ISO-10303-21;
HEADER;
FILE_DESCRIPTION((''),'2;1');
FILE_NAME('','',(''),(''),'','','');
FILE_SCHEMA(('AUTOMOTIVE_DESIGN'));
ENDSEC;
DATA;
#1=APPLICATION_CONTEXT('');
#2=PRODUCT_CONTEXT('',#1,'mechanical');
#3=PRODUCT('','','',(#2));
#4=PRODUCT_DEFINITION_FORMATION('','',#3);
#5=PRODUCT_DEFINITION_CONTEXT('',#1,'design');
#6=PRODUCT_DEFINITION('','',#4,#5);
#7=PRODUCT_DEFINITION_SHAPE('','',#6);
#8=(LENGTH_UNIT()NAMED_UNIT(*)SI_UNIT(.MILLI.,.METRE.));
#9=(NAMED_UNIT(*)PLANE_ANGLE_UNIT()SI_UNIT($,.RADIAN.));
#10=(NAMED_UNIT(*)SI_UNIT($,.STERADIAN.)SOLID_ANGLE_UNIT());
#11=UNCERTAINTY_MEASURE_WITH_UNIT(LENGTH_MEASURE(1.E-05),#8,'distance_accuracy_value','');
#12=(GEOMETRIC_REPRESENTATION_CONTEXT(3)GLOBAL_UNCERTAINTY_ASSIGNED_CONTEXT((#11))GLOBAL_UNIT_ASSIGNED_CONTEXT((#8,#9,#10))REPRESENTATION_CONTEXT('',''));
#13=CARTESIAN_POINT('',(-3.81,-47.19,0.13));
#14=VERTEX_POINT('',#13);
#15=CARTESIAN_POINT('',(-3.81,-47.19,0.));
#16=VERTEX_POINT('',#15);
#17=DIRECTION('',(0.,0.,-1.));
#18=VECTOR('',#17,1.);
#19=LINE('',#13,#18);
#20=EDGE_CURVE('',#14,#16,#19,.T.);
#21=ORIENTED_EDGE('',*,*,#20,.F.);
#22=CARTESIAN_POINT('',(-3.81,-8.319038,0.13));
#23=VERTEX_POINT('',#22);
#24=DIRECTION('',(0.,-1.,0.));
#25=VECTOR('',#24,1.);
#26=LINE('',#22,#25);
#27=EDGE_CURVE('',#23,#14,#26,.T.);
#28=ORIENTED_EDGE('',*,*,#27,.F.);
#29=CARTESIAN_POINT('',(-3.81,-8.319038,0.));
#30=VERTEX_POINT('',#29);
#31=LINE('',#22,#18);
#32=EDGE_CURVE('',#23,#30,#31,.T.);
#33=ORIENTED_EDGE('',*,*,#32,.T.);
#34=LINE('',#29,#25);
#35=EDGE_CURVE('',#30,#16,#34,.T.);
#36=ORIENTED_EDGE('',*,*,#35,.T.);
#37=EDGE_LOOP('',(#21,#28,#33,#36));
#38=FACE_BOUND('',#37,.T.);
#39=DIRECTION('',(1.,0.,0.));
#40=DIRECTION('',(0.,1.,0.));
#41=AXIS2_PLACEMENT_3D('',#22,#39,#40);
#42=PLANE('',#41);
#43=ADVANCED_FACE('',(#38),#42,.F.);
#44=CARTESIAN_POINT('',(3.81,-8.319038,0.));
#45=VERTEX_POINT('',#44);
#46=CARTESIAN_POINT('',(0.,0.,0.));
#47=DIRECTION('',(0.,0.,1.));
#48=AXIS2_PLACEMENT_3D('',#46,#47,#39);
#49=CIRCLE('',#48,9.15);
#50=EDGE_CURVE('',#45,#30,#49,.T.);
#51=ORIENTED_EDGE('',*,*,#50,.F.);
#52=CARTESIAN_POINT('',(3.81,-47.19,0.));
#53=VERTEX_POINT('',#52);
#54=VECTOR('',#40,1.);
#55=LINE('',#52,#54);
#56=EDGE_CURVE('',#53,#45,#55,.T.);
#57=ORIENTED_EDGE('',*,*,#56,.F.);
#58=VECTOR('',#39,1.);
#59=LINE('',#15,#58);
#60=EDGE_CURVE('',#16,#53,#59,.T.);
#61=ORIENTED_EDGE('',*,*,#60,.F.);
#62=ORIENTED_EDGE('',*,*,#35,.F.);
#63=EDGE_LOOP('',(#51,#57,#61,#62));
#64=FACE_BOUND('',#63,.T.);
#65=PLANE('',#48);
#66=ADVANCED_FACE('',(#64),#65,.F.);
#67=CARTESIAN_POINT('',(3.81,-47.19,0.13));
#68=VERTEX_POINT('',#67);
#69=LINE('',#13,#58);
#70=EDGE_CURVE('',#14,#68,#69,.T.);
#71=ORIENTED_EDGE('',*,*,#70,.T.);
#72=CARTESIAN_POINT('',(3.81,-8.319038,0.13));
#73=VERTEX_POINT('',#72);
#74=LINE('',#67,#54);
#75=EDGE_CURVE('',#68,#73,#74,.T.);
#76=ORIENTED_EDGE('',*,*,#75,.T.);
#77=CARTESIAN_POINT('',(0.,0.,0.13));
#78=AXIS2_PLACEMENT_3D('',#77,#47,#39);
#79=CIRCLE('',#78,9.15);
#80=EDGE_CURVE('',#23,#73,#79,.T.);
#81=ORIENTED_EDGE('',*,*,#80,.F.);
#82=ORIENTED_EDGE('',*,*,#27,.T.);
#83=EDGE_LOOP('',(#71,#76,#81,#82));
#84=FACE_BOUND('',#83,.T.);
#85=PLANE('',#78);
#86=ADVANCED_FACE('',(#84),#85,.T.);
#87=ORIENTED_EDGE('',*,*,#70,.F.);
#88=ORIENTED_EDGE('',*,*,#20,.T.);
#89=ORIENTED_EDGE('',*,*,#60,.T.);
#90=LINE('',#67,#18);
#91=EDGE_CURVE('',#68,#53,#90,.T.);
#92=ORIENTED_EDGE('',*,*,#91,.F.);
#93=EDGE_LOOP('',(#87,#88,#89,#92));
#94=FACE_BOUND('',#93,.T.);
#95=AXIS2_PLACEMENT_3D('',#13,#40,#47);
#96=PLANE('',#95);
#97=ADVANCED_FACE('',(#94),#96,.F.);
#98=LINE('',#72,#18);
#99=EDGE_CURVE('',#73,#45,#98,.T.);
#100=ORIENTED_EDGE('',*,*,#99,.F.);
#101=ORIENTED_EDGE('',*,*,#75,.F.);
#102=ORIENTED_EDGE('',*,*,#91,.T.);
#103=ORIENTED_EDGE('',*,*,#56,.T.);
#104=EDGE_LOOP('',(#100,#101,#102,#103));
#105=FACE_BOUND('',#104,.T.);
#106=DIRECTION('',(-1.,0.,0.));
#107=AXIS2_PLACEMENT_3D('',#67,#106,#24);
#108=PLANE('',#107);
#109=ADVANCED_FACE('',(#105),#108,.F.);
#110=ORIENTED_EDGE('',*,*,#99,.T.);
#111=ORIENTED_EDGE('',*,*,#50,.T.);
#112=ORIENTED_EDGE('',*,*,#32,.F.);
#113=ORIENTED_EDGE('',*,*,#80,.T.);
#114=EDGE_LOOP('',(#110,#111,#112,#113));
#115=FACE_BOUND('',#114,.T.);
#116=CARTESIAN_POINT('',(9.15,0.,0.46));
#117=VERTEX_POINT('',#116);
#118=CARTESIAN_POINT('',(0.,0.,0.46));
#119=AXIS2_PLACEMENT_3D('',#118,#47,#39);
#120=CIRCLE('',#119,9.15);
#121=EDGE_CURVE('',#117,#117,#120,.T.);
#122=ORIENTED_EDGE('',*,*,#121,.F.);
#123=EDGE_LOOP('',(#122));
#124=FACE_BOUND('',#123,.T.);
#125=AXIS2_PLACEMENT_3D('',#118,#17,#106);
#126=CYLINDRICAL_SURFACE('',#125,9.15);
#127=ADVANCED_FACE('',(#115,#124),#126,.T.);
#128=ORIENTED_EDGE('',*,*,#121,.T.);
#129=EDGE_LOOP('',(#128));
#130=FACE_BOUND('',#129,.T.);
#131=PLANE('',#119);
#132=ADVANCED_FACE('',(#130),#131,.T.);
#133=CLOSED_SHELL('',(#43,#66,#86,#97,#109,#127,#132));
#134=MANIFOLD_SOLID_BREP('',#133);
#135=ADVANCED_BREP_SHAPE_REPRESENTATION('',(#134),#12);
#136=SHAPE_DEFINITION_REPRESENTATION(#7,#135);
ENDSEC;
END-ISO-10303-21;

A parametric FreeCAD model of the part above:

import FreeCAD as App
import Part
import Sketcher

V = App.Vector


def add_polygon(sketch, points):
    """Adds a closed chain of lines whose ends are joined by coincident constraints."""
    first, n = sketch.GeometryCount, len(points)
    for a, b in zip(points, points[1:] + points[:1]):
        sketch.addGeometry(Part.LineSegment(App.Vector(*a, 0), App.Vector(*b, 0)), False)
    for i in range(n):
        sketch.addConstraint(Sketcher.Constraint("Coincident", first + i, 2, first + (i + 1) % n, 1))

doc = App.newDocument("Part")
body = doc.addObject("PartDesign::Body", "Body")

sketch1 = body.newObject("Sketcher::SketchObject", "Sketch")
sketch1.AttachmentSupport = (doc.getObject("XY_Plane"), [""])
sketch1.MapMode = "FlatFace"
sketch1.addGeometry(Part.Circle(V(0, 0, 0), V(0, 0, 1), 9.15), False)
sketch1.addConstraint([
    Sketcher.Constraint("Coincident", 0, 3, -1, 1),
    Sketcher.Constraint("Diameter", 0, 18.3),
])
pad1 = body.newObject("PartDesign::Pad", "Pad")
pad1.Profile = sketch1
pad1.Length = 0.46

sketch2 = body.newObject("Sketcher::SketchObject", "Sketch001")
sketch2.AttachmentSupport = (doc.getObject("XY_Plane"), [""])
sketch2.MapMode = "FlatFace"
add_polygon(sketch2, [(-3.81, -8.319038), (-3.81, -47.19), (3.81, -47.19), (3.81, -8.319038)])
sketch2.addConstraint([
    Sketcher.Constraint("Vertical", 0),
    Sketcher.Constraint("Horizontal", 1),
    Sketcher.Constraint("Vertical", 2),
    Sketcher.Constraint("Horizontal", 3),
    Sketcher.Constraint("DistanceX", 1, 1, 1, 2, 7.62),
    Sketcher.Constraint("DistanceX", 0, 2, -1, 1, 3.81),
    Sketcher.Constraint("DistanceY", 0, 2, -1, 1, 47.19),
    Sketcher.Constraint("DistanceY", 0, 2, 0, 1, 38.870962),
])
pad2 = body.newObject("PartDesign::Pad", "Pad001")
pad2.Profile = sketch2
pad2.Length = 0.13

doc.recompute()
